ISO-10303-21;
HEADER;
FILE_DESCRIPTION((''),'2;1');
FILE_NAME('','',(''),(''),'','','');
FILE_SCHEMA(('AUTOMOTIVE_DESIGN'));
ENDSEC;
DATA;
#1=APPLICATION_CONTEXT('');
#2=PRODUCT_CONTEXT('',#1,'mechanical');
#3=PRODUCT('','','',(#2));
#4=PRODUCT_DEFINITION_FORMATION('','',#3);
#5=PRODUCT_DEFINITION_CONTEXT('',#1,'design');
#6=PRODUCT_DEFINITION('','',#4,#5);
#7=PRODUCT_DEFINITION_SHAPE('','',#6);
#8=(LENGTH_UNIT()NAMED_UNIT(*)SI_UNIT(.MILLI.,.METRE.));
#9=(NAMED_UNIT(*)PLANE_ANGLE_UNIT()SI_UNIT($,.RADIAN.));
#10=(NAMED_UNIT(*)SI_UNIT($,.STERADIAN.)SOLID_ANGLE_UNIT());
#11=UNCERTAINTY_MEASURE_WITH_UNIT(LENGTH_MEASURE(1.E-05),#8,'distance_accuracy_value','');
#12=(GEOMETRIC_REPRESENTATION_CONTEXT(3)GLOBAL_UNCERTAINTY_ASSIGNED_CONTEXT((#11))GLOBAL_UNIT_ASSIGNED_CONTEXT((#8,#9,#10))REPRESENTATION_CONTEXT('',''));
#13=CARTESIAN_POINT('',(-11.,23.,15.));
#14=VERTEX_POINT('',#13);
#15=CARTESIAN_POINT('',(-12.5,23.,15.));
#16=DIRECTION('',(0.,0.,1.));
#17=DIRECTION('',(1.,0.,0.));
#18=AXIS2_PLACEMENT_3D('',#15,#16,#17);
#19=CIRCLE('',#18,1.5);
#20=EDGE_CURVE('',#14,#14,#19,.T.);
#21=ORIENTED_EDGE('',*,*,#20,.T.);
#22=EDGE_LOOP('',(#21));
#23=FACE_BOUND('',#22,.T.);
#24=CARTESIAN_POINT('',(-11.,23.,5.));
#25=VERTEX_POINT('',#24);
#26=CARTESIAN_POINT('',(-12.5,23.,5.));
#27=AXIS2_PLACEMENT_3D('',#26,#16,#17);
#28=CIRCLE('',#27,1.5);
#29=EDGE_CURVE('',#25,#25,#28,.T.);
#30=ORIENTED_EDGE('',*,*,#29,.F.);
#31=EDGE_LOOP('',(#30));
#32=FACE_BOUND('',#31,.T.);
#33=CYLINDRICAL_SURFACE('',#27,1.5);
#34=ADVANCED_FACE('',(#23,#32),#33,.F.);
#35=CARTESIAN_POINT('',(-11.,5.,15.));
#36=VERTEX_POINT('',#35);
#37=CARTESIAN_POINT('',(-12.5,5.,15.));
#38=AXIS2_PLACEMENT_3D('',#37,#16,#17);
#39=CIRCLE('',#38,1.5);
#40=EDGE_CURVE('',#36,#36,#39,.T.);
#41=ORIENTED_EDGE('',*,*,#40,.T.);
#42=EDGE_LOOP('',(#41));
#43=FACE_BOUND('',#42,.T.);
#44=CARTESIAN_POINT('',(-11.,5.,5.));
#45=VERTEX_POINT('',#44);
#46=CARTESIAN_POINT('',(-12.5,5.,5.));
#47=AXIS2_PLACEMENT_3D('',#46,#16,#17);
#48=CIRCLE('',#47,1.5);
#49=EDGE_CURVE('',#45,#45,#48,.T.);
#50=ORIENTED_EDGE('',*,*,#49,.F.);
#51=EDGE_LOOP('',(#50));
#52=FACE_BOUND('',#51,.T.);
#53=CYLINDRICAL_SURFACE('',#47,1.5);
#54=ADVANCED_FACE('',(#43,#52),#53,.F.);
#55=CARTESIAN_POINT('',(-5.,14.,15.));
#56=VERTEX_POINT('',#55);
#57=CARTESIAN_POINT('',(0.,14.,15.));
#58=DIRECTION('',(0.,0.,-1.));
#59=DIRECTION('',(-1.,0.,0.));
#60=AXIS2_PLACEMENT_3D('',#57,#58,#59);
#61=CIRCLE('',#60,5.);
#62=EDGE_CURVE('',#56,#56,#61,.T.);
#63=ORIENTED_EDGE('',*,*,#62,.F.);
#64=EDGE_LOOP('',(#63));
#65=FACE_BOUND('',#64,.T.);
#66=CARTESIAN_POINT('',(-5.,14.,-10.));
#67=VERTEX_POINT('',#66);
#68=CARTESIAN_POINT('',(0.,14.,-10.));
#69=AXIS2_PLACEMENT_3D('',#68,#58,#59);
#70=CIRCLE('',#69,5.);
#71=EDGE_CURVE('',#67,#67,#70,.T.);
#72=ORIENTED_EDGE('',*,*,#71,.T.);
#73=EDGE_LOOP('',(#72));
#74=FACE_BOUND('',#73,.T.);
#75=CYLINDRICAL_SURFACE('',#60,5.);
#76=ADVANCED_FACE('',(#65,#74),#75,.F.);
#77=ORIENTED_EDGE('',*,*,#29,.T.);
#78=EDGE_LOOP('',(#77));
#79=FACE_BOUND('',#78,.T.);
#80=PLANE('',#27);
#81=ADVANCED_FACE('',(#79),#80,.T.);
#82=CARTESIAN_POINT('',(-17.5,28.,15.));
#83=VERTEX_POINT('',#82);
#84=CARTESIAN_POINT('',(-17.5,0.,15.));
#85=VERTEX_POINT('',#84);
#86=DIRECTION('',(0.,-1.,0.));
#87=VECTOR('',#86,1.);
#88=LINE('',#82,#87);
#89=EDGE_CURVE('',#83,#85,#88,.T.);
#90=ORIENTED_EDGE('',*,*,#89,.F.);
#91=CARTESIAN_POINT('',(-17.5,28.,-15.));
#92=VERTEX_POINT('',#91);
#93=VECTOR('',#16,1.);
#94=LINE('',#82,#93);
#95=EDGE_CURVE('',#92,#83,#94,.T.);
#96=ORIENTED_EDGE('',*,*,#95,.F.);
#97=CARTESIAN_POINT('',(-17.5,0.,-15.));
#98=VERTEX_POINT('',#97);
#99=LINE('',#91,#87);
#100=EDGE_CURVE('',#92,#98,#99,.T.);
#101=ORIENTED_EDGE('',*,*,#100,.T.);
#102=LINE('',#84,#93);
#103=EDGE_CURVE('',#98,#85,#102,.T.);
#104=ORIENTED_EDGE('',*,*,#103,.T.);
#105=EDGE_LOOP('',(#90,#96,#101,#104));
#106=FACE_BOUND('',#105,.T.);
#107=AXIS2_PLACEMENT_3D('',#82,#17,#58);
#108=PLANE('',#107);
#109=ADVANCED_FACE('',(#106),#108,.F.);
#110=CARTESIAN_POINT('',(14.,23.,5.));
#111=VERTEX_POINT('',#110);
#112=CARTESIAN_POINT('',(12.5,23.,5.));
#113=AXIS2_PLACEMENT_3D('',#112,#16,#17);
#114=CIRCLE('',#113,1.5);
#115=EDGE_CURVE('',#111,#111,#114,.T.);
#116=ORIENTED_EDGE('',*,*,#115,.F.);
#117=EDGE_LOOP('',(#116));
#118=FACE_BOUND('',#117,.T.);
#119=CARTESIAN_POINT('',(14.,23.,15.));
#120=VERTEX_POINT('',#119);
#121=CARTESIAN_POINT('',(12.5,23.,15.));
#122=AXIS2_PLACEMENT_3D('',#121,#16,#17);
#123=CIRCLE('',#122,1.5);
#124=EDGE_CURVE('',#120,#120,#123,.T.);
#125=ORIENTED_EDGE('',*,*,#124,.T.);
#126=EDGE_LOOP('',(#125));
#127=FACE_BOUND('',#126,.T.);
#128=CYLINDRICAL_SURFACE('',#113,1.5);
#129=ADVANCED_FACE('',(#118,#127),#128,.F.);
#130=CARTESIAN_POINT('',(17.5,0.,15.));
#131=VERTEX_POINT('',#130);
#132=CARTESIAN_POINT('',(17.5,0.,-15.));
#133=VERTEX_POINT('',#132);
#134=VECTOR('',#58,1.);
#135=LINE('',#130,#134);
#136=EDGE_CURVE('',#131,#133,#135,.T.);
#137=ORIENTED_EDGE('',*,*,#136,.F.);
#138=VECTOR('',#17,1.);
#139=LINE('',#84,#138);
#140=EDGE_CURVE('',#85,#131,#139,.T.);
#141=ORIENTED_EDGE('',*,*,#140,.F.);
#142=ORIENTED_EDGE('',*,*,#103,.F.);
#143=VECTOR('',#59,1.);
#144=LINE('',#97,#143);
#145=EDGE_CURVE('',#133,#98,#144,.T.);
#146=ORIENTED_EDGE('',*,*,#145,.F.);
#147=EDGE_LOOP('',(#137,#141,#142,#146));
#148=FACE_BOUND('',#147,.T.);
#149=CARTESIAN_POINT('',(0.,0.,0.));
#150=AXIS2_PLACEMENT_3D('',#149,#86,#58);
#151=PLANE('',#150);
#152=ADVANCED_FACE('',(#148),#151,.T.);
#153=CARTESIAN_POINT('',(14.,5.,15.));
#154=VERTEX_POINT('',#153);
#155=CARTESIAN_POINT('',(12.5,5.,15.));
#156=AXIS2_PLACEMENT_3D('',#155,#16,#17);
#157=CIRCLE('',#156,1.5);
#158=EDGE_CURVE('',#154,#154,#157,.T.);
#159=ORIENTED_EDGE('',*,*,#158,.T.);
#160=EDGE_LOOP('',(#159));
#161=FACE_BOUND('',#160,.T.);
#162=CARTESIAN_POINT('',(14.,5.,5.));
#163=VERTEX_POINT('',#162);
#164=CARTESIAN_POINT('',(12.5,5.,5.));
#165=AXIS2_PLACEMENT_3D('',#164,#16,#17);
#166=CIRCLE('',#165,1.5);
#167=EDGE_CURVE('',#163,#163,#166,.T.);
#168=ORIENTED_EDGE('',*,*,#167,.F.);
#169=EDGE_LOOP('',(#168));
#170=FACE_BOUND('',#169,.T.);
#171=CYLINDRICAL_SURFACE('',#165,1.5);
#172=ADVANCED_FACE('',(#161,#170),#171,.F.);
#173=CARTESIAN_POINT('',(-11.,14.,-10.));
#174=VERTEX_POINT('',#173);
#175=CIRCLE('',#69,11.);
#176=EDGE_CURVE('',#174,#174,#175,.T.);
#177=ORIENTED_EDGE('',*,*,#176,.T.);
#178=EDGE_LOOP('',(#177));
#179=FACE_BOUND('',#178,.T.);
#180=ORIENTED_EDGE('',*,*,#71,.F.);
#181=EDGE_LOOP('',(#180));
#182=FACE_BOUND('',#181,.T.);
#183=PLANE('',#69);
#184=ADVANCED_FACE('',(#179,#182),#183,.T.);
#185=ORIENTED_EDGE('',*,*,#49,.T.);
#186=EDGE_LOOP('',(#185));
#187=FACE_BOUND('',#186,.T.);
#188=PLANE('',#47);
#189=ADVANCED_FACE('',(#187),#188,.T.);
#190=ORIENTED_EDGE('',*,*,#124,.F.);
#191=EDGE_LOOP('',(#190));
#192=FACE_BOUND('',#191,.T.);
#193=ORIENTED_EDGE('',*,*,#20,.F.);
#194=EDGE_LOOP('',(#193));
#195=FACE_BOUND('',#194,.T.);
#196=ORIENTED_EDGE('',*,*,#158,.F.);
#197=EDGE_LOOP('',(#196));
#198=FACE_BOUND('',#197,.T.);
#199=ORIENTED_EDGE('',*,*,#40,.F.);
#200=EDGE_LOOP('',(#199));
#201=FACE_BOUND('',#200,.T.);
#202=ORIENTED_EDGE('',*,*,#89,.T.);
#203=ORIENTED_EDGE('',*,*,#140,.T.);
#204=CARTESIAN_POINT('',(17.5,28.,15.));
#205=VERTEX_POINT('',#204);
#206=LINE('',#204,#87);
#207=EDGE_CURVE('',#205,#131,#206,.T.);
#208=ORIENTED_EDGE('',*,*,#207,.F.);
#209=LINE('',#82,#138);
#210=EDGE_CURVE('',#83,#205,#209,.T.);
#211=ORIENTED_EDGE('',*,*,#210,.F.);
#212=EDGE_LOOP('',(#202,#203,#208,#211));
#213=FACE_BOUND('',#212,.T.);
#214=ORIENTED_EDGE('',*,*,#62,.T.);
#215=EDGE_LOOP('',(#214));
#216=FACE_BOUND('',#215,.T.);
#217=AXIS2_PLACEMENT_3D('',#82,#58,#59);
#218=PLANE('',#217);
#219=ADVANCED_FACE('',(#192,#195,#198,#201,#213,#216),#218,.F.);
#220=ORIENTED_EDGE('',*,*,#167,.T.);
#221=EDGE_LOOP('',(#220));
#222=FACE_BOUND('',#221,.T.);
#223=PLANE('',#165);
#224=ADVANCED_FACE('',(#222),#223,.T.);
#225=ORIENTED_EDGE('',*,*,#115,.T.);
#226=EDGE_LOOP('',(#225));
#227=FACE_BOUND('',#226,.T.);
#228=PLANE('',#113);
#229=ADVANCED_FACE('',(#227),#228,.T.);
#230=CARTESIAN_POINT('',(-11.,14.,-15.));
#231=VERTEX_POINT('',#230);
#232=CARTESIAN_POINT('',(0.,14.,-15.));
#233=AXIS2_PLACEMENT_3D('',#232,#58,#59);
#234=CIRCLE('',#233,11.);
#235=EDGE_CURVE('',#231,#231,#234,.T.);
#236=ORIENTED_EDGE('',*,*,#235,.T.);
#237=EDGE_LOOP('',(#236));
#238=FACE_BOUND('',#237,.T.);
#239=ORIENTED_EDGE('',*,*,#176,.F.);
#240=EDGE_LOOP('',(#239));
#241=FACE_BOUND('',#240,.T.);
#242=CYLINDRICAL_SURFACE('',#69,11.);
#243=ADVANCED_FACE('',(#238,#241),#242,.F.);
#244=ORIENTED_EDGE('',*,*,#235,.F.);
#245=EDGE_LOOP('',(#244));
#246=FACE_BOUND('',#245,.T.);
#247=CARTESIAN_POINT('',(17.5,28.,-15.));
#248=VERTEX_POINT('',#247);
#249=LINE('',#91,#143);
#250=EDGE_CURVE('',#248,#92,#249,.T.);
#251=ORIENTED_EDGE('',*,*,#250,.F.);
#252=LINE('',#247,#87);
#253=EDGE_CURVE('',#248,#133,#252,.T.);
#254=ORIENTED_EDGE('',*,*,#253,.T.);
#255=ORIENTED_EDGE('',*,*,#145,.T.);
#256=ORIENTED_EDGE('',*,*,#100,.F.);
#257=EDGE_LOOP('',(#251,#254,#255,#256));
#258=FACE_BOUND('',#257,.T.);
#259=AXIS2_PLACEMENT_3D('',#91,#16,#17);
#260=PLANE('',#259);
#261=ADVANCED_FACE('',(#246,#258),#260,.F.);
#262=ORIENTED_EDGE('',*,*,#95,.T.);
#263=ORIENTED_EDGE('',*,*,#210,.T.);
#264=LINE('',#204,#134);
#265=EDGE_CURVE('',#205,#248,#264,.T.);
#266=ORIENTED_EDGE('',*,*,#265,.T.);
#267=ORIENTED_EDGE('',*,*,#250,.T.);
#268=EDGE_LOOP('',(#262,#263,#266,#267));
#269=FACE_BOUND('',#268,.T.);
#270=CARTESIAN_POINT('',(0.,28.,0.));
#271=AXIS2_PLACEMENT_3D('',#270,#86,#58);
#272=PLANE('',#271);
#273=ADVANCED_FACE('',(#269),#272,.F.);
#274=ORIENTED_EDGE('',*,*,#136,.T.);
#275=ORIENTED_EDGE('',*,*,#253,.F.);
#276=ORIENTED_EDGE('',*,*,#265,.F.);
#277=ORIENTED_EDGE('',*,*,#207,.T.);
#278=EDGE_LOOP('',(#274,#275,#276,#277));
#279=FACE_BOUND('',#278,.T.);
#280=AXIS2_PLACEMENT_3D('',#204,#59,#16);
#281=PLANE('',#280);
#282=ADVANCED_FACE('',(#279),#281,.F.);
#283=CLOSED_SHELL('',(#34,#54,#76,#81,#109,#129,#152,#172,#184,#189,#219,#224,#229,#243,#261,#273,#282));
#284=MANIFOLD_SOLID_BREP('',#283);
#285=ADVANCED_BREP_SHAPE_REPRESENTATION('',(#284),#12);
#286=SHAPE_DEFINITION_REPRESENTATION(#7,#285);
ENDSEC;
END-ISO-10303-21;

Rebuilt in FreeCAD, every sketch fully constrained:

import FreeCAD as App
import Part
import Sketcher
Q = App.Units.Quantity

doc = App.newDocument("Part")
params = doc.addObject("Spreadsheet::Sheet", "Params")
for row, (alias, value) in enumerate([
    ("sketch1_width", "35 mm"),
    ("sketch1_height", "30 mm"),
    ("pad1_length", "28 mm"),
    ("sketch2_diameter", "3 mm"),
    ("pocket1_length", "10 mm"),
    ("sketch3_diameter", "22 mm"),
    ("pocket2_length", "5 mm"),
    ("sketch4_diameter", "10 mm"),
], start=1):
    params.set(f"A{row}", alias)
    params.set(f"B{row}", "=" + value)
    params.setAlias(f"B{row}", alias)

body = doc.addObject("PartDesign::Body", "Body")

# Sketch on XZ plane
sketch1 = body.newObject("Sketcher::SketchObject", "Sketch")
sketch1.AttachmentSupport = (doc.getObject("XZ_Plane"), [""])
sketch1.MapMode = "FlatFace"
sketch1.addGeometry([
    Part.LineSegment(App.Vector(-18, -15, 0), App.Vector(-18, 15, 0)),
    Part.LineSegment(App.Vector(-18, 15, 0), App.Vector(18, 15, 0)),
    Part.LineSegment(App.Vector(18, 15, 0), App.Vector(18, -15, 0)),
    Part.LineSegment(App.Vector(18, -15, 0), App.Vector(-18, -15, 0)),
], False)
sketch1.addConstraint([
    Sketcher.Constraint("Coincident", 0, 2, 1, 1),
    Sketcher.Constraint("Coincident", 1, 2, 2, 1),
    Sketcher.Constraint("Coincident", 2, 2, 3, 1),
    Sketcher.Constraint("Coincident", 3, 2, 0, 1),
    Sketcher.Constraint("Vertical", 0),
    Sketcher.Constraint("Horizontal", 1),
    Sketcher.Constraint("Vertical", 2),
    Sketcher.Constraint("Horizontal", 3),
    Sketcher.Constraint("Symmetric", 0, 2, 2, 2, -1, 1),
    Sketcher.Constraint("DistanceX", 1, 1, 1, 2, Q("35 mm")),
    Sketcher.Constraint("DistanceY", 0, 1, 0, 2, Q("30 mm")),
])
sketch1.setExpression("Constraints[9]", "Params.sketch1_width")
sketch1.setExpression("Constraints[10]", "Params.sketch1_height")
pad1 = body.newObject("PartDesign::Pad", "Pad")
pad1.Profile = sketch1
pad1.setExpression("Length", "Params.pad1_length")
pad1.Reversed = True

# Sketch on XY plane
sketch2 = body.newObject("Sketcher::SketchObject", "Sketch001")
sketch2.AttachmentSupport = (doc.getObject("XY_Plane"), [""])
sketch2.MapMode = "FlatFace"
sketch2.AttachmentOffset = App.Placement(App.Vector(0, 0, 15), App.Rotation())
sketch2.addGeometry([
    Part.Circle(App.Vector(-12.5, 23, 0), App.Vector(0, 0, 1), 1.5),
    Part.Circle(App.Vector(12.5, 23, 0), App.Vector(0, 0, 1), 1.5),
    Part.Circle(App.Vector(12.5, 5, 0), App.Vector(0, 0, 1), 1.5),
    Part.Circle(App.Vector(-12.5, 5, 0), App.Vector(0, 0, 1), 1.5),
], False)
sketch2.addConstraint([
    Sketcher.Constraint("Equal", 0, 1),
    Sketcher.Constraint("Equal", 1, 2),
    Sketcher.Constraint("Equal", 2, 3),
    Sketcher.Constraint("Symmetric", 0, 3, 1, 3, -2),
    Sketcher.Constraint("Symmetric", 2, 3, 3, 3, -2),
    Sketcher.Constraint("Vertical", 1, 3, 2, 3),
    Sketcher.Constraint("Diameter", 0, Q("3 mm")),
    Sketcher.Constraint("DistanceY", -1, 1, 0, 3, Q("23 mm")),
    Sketcher.Constraint("DistanceY", -1, 1, 2, 3, Q("5 mm")),
    Sketcher.Constraint("DistanceX", 0, 3, 1, 3, Q("25 mm")),
])
sketch2.setExpression("Constraints[6]", "Params.sketch2_diameter")
pocket1 = body.newObject("PartDesign::Pocket", "Pocket")
pocket1.Profile = sketch2
pocket1.setExpression("Length", "Params.pocket1_length")

# Sketch on XY plane
sketch3 = body.newObject("Sketcher::SketchObject", "Sketch002")
sketch3.AttachmentSupport = (doc.getObject("XY_Plane"), [""])
sketch3.MapMode = "FlatFace"
sketch3.AttachmentOffset = App.Placement(App.Vector(0, 0, -15), App.Rotation())
sketch3.addGeometry(Part.Circle(App.Vector(0, 14, 0), App.Vector(0, 0, 1), 11), False)
sketch3.addConstraint([
    Sketcher.Constraint("PointOnObject", 0, 3, -2),
    Sketcher.Constraint("Diameter", 0, Q("22 mm")),
    Sketcher.Constraint("DistanceY", -1, 1, 0, 3, Q("14 mm")),
])
sketch3.setExpression("Constraints[1]", "Params.sketch3_diameter")
pocket2 = body.newObject("PartDesign::Pocket", "Pocket001")
pocket2.Profile = sketch3
pocket2.setExpression("Length", "Params.pocket2_length")
pocket2.Reversed = True

# Sketch on XY plane
sketch4 = body.newObject("Sketcher::SketchObject", "Sketch003")
sketch4.AttachmentSupport = (doc.getObject("XY_Plane"), [""])
sketch4.MapMode = "FlatFace"
sketch4.AttachmentOffset = App.Placement(App.Vector(0, 0, -10), App.Rotation())
sketch4.addGeometry(Part.Circle(App.Vector(0, 14, 0), App.Vector(0, 0, 1), 5), False)
sketch4.addConstraint([
    Sketcher.Constraint("PointOnObject", 0, 3, -2),
    Sketcher.Constraint("Diameter", 0, Q("10 mm")),
    Sketcher.Constraint("DistanceY", -1, 1, 0, 3, Q("14 mm")),
])
sketch4.setExpression("Constraints[1]", "Params.sketch4_diameter")
pocket3 = body.newObject("PartDesign::Pocket", "Pocket002")
pocket3.Profile = sketch4
pocket3.Type = "ThroughAll"
pocket3.Reversed = True

doc.recompute()
